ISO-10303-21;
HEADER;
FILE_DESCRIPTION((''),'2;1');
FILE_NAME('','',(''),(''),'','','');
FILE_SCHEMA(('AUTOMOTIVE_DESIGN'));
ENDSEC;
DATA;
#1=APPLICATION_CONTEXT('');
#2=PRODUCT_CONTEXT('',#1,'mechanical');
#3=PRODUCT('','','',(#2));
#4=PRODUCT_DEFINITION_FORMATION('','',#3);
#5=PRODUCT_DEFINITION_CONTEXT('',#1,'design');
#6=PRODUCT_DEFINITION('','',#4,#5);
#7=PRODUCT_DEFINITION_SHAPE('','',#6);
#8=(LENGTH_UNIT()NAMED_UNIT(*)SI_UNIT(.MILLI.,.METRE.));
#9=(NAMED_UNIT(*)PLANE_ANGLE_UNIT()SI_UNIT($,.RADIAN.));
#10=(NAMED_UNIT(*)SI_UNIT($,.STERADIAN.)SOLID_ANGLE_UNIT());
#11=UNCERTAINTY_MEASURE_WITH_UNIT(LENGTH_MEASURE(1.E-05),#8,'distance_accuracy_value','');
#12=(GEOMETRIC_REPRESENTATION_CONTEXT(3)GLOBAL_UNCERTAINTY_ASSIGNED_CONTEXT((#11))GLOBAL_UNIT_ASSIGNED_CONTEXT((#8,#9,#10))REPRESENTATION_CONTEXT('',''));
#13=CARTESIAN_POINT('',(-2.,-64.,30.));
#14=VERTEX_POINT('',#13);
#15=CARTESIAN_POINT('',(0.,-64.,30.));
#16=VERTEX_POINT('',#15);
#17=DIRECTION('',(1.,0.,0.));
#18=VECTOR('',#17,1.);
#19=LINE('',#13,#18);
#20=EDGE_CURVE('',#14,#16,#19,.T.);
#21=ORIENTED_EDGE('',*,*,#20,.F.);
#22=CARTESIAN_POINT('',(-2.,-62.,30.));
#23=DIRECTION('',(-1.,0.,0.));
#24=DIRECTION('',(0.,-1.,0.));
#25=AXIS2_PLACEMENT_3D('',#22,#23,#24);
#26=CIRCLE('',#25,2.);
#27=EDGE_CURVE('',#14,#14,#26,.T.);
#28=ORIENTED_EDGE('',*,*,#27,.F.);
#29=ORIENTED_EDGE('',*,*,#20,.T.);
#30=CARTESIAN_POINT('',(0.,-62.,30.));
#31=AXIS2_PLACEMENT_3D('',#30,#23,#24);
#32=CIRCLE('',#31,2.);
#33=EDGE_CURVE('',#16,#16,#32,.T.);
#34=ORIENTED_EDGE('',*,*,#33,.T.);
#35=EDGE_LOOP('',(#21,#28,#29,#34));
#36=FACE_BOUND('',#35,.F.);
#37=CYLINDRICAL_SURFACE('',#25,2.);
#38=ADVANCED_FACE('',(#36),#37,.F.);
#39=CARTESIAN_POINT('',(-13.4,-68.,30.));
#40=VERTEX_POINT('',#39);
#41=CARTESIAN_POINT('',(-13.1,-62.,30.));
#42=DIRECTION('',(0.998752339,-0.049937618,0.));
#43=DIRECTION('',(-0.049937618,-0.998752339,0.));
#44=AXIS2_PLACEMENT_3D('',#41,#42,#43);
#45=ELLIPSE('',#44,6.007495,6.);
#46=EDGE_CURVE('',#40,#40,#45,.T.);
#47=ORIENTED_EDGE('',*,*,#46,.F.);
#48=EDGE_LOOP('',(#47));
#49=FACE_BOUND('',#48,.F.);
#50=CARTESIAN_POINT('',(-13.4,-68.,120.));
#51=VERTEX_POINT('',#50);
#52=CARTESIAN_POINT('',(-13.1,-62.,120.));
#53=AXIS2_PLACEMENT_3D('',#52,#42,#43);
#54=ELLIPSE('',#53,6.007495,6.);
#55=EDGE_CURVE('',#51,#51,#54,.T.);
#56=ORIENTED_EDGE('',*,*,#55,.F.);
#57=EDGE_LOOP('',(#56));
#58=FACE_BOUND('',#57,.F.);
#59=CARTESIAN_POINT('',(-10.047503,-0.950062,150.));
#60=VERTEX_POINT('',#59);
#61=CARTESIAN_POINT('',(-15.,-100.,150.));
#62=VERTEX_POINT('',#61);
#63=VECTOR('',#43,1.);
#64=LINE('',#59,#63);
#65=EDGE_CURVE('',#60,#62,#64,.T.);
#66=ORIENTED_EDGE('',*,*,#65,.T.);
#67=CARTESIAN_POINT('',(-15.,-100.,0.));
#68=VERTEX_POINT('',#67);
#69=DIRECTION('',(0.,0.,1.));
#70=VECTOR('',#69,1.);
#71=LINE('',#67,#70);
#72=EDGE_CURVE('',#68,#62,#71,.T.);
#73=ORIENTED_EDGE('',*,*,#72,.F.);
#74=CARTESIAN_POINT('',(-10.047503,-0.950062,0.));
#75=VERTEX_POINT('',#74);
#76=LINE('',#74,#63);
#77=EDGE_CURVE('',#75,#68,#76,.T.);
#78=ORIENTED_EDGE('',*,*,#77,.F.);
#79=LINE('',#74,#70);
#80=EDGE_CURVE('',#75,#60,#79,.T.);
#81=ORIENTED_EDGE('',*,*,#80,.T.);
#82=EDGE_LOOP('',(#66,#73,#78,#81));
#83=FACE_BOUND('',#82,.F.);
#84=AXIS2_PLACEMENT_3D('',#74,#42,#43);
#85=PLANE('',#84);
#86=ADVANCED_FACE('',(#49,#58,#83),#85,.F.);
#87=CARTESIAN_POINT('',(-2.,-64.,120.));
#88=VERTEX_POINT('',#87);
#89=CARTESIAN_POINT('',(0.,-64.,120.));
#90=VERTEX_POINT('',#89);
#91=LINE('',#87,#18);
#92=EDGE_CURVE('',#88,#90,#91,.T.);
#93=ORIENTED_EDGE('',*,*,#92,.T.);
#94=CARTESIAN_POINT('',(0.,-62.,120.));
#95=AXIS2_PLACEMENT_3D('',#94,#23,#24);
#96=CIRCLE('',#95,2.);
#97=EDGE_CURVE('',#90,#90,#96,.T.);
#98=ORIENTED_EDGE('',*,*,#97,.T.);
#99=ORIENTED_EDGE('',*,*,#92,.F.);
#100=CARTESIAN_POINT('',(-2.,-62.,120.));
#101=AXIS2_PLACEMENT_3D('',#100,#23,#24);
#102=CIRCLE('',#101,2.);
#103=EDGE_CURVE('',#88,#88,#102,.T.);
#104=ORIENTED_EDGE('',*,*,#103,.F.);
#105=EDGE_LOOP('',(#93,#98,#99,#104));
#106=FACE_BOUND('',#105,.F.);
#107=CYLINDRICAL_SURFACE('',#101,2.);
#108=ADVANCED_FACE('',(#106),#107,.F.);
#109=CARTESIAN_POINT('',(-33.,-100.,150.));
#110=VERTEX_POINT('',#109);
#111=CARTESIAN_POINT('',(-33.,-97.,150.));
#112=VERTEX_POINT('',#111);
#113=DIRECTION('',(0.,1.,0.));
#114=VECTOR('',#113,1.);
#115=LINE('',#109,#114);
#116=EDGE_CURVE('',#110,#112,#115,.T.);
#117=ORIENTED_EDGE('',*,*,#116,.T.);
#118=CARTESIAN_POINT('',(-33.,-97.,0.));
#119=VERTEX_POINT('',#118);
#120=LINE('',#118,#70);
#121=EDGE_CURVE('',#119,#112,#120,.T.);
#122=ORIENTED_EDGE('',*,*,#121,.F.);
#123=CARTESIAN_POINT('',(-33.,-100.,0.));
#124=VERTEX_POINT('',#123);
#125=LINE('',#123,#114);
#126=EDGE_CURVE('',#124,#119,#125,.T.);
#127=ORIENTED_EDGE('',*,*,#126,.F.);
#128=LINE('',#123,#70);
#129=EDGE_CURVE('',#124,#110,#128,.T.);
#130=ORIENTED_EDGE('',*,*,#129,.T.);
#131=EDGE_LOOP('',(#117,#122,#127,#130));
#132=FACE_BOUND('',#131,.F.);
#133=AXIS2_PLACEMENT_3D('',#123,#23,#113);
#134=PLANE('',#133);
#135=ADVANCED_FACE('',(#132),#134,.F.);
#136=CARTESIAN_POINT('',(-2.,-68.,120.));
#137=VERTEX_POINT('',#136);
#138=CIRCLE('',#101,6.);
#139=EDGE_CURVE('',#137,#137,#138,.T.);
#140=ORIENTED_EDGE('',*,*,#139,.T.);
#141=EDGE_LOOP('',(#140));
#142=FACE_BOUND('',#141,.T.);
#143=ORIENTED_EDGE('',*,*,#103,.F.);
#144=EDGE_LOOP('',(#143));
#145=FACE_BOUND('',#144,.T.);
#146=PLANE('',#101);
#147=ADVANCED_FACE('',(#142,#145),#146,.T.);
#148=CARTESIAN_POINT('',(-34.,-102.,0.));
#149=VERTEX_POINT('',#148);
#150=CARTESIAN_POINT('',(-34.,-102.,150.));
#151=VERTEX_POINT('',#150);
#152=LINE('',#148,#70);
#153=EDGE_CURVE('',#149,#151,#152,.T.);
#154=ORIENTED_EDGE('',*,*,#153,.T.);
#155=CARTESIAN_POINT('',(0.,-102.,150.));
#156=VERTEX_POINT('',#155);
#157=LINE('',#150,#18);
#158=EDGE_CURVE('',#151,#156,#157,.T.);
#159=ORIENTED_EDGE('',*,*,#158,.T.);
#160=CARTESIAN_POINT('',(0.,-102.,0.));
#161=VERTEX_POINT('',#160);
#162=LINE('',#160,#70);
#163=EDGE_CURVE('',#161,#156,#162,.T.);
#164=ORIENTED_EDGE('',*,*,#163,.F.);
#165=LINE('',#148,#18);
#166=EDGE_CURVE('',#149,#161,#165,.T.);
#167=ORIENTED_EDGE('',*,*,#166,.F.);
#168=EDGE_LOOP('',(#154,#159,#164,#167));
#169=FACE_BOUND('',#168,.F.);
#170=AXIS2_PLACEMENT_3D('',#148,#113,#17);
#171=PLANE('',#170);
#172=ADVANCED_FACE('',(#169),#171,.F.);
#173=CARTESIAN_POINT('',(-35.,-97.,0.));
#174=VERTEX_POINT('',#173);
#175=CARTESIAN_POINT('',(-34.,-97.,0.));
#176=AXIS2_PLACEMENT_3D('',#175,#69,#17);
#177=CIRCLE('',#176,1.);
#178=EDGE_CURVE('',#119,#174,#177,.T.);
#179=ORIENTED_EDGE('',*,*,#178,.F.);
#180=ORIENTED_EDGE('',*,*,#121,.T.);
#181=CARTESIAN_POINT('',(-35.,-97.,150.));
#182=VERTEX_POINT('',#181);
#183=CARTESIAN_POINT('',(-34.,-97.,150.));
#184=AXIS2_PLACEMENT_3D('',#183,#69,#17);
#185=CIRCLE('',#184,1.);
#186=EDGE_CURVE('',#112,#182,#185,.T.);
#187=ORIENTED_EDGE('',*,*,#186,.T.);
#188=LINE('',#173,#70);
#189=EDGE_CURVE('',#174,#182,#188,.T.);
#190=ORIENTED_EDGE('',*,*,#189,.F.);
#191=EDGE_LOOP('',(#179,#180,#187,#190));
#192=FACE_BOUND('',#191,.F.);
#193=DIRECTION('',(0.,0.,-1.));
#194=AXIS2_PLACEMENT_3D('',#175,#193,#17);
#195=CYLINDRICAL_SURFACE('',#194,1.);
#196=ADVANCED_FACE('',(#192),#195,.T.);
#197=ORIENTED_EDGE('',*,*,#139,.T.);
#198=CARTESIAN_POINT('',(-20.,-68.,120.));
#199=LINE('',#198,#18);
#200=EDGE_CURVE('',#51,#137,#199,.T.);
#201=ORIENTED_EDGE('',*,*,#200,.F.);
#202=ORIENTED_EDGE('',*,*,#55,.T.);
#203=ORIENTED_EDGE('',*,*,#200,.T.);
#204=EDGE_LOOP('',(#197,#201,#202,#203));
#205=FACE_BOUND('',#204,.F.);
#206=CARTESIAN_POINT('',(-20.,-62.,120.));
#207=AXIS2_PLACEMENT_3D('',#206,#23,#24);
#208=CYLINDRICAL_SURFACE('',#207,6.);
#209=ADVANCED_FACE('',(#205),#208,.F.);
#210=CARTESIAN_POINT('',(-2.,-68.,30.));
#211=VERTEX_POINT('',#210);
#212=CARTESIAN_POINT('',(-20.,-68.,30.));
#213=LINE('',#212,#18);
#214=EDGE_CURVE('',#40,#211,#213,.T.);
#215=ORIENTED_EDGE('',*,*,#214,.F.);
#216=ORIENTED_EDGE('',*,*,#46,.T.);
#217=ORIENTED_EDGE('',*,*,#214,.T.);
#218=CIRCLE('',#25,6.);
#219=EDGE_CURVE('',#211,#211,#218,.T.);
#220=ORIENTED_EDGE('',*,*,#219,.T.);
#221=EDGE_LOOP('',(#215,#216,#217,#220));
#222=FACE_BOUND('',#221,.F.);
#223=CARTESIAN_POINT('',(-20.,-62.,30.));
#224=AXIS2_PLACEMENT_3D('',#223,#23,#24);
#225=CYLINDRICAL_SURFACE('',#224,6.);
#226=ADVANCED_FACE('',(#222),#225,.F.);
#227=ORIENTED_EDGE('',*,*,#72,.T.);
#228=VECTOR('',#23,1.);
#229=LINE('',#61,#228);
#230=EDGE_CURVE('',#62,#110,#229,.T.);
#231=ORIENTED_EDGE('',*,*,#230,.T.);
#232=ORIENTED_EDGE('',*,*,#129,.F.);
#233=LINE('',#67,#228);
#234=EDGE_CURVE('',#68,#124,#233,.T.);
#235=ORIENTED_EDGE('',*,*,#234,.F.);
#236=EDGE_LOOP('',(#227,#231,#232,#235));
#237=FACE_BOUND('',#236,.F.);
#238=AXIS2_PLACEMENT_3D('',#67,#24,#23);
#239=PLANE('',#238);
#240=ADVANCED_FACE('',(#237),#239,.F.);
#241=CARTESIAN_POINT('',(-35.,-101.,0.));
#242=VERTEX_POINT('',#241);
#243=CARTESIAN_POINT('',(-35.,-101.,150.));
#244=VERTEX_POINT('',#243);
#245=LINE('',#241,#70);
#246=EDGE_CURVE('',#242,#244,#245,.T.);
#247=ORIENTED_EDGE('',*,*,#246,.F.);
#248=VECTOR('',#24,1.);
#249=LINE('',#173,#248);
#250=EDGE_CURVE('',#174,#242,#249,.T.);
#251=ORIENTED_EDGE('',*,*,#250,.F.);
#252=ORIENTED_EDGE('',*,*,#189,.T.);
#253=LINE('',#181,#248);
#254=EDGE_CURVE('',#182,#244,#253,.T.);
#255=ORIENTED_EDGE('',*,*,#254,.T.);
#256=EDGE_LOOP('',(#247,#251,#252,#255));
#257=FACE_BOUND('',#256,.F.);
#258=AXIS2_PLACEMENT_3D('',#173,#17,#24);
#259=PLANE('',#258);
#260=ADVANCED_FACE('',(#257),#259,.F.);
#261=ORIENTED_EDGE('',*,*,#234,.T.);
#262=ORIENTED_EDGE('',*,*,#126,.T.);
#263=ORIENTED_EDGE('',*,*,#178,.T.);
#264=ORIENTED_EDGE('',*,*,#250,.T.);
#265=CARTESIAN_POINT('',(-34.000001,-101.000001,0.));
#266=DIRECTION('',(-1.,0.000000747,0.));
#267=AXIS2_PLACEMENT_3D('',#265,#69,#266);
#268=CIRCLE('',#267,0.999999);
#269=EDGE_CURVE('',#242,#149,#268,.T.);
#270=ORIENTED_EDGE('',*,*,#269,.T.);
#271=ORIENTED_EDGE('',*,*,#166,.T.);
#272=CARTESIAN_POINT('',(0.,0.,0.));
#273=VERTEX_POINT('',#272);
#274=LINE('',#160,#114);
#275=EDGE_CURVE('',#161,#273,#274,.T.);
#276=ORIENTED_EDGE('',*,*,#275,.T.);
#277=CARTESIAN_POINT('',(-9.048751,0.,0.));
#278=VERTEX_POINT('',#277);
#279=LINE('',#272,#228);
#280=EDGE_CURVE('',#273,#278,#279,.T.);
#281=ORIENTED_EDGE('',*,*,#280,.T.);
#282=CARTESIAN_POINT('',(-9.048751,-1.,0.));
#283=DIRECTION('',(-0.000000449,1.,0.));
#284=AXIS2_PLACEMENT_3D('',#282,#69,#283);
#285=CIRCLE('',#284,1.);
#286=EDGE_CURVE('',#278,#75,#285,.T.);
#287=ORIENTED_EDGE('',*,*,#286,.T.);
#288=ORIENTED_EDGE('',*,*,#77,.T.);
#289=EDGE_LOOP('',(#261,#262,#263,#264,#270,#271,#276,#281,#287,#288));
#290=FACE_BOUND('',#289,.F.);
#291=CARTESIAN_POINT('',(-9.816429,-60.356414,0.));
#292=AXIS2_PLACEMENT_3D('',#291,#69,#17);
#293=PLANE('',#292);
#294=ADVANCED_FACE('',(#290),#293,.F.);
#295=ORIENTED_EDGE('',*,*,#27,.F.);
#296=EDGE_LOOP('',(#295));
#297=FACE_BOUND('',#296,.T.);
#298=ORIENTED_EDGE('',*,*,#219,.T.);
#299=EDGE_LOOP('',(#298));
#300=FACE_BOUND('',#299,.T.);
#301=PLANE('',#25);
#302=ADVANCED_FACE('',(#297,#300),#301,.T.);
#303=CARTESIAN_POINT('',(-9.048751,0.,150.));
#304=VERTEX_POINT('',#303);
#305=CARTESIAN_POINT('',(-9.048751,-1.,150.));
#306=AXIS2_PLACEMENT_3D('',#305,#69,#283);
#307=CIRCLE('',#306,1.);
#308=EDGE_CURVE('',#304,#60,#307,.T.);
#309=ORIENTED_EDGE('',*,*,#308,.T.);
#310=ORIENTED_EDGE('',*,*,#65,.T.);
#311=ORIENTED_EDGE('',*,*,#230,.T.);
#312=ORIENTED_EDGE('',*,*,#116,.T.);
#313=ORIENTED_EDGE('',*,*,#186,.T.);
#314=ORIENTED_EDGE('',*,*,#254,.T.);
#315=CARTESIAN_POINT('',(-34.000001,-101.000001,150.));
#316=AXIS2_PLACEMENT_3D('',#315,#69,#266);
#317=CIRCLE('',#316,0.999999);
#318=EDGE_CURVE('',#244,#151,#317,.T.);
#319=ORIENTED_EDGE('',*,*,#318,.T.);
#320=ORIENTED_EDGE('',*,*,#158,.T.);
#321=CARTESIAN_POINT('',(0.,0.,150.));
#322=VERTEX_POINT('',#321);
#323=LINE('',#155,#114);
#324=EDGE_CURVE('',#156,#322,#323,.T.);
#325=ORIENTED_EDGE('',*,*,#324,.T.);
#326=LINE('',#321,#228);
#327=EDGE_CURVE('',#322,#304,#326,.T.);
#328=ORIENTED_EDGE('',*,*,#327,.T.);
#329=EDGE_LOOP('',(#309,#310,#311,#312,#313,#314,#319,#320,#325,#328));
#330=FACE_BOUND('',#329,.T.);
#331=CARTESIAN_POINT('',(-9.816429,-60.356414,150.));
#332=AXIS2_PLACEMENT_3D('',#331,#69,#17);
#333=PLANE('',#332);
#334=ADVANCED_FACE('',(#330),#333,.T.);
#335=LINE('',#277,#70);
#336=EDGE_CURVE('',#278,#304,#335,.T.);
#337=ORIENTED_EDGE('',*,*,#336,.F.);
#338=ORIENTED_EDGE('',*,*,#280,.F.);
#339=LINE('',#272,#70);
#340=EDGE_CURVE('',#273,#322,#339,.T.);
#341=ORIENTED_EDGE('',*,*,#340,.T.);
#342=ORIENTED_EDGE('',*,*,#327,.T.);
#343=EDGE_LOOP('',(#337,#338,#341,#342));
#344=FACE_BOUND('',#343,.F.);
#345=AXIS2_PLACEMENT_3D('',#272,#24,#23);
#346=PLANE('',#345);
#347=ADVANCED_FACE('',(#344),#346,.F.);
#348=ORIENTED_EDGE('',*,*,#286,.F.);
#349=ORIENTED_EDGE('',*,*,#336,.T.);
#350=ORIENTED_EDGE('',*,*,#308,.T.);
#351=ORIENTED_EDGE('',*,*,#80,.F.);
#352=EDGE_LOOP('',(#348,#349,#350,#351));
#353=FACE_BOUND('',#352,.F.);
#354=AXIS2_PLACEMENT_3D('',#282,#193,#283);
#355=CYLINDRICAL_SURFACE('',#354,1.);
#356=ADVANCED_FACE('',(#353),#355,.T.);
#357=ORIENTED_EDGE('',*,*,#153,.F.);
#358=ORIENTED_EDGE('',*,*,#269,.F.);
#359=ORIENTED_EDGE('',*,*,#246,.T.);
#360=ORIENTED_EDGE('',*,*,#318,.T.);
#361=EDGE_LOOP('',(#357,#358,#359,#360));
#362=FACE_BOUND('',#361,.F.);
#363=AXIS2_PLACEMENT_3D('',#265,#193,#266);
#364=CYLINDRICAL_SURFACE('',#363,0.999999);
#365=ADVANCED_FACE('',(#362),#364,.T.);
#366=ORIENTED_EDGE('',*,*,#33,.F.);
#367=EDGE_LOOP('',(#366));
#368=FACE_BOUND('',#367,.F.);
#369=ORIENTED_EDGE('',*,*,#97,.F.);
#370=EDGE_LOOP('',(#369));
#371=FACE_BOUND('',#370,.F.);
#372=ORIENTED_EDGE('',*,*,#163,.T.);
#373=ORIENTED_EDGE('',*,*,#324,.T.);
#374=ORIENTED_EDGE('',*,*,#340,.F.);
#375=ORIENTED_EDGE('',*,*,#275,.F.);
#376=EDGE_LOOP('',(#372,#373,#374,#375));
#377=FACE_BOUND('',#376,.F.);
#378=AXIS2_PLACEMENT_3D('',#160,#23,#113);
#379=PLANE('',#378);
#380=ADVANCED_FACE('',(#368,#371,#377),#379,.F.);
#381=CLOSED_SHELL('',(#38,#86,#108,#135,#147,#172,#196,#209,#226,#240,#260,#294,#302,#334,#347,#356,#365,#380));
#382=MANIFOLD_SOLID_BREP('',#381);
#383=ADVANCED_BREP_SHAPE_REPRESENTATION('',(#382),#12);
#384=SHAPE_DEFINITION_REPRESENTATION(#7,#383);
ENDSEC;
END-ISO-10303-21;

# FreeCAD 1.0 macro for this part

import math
import FreeCAD as App
import Part
import Sketcher

V = App.Vector
Q = App.Units.Quantity

doc = App.newDocument("Part")
body = doc.addObject("PartDesign::Body", "Body")

sketch1 = body.newObject("Sketcher::SketchObject", "Sketch")
sketch1.AttachmentSupport = (doc.getObject("XY_Plane"), [""])
sketch1.MapMode = "FlatFace"
sketch1.addGeometry([
    Part.LineSegment(V(0, 0, 0), V(-9, 0, 0)),
    Part.ArcOfCircle(Part.Circle(V(-9, -1, 0), V(0, 0, 1), 1), math.radians(90), math.radians(177)),
    Part.LineSegment(V(-10, -1, 0), V(-15, -100, 0)),
    Part.LineSegment(V(-15, -100, 0), V(-33, -100, 0)),
    Part.LineSegment(V(-33, -100, 0), V(-33, -97, 0)),
    Part.ArcOfCircle(Part.Circle(V(-34, -97, 0), V(0, 0, 1), 1), math.radians(0), math.radians(180)),
    Part.LineSegment(V(-35, -97, 0), V(-35, -101, 0)),
    Part.ArcOfCircle(Part.Circle(V(-34, -101, 0), V(0, 0, 1), 1), math.radians(180), math.radians(270)),
    Part.LineSegment(V(-34, -102, 0), V(0, -102, 0)),
    Part.LineSegment(V(0, -102, 0), V(0, 0, 0)),
], False)
sketch1.addConstraint([
    Sketcher.Constraint("Tangent", 0, 2, 1, 1),
    Sketcher.Constraint("Tangent", 1, 2, 2, 1),
    Sketcher.Constraint("Coincident", 2, 2, 3, 1),
    Sketcher.Constraint("Coincident", 3, 2, 4, 1),
    Sketcher.Constraint("Tangent", 4, 2, 5, 1),
    Sketcher.Constraint("Tangent", 5, 2, 6, 1),
    Sketcher.Constraint("Tangent", 6, 2, 7, 1),
    Sketcher.Constraint("Tangent", 7, 2, 8, 1),
    Sketcher.Constraint("Coincident", 8, 2, 9, 1),
    Sketcher.Constraint("Coincident", 9, 2, 0, 1),
    Sketcher.Constraint("Horizontal", 0),
    Sketcher.Constraint("Horizontal", 3),
    Sketcher.Constraint("Vertical", 4),
    Sketcher.Constraint("Vertical", 6),
    Sketcher.Constraint("Horizontal", 8),
    Sketcher.Constraint("Vertical", 9),
    Sketcher.Constraint("Coincident", 9, 2, -1, 1),
    Sketcher.Constraint("Equal", 1, 5),
    Sketcher.Constraint("Equal", 5, 7),
    Sketcher.Constraint("Radius", 1, Q("1 mm")),
    Sketcher.Constraint("DistanceX", 3, 2, 3, 1, Q("18 mm")),
    Sketcher.Constraint("DistanceX", 8, 1, 8, 2, Q("34 mm")),
    Sketcher.Constraint("DistanceY", 4, 1, 4, 2, Q("3 mm")),
    Sketcher.Constraint("DistanceY", 6, 2, 6, 1, Q("4 mm")),
    Sketcher.Constraint("DistanceY", 9, 1, 9, 2, Q("102 mm")),
    Sketcher.Constraint("DistanceX", 0, 2, 0, 1, Q("9.048751 mm")),
])
pad1 = body.newObject("PartDesign::Pad", "Pad")
pad1.Profile = sketch1
pad1.Length = 150

sketch2 = body.newObject("Sketcher::SketchObject", "Sketch001")
sketch2.AttachmentSupport = (doc.getObject("YZ_Plane"), [""])
sketch2.MapMode = "FlatFace"
sketch2.AttachmentOffset = App.Placement(V(0, 0, -20), App.Rotation())
sketch2.addGeometry([
    Part.Circle(V(-62, 30, 0), V(0, 0, 1), 6),
    Part.Circle(V(-62, 120, 0), V(0, 0, 1), 6),
], False)
sketch2.addConstraint([
    Sketcher.Constraint("Equal", 0, 1),
    Sketcher.Constraint("Vertical", 0, 3, 1, 3),
    Sketcher.Constraint("Diameter", 0, Q("12 mm")),
    Sketcher.Constraint("DistanceX", 0, 3, -1, 1, Q("62 mm")),
    Sketcher.Constraint("DistanceY", -1, 1, 0, 3, Q("30 mm")),
    Sketcher.Constraint("DistanceY", -1, 1, 1, 3, Q("120 mm")),
])
pocket1 = body.newObject("PartDesign::Pocket", "Pocket")
pocket1.Profile = sketch2
pocket1.Length = 18
pocket1.Reversed = True

sketch3 = body.newObject("Sketcher::SketchObject", "Sketch002")
sketch3.AttachmentSupport = (doc.getObject("YZ_Plane"), [""])
sketch3.MapMode = "FlatFace"
sketch3.AttachmentOffset = App.Placement(V(0, 0, -2), App.Rotation())
sketch3.addGeometry([
    Part.Circle(V(-62, 120, 0), V(0, 0, 1), 2),
    Part.Circle(V(-62, 30, 0), V(0, 0, 1), 2),
], False)
sketch3.addConstraint([
    Sketcher.Constraint("Equal", 0, 1),
    Sketcher.Constraint("Vertical", 0, 3, 1, 3),
    Sketcher.Constraint("Diameter", 0, Q("4 mm")),
    Sketcher.Constraint("DistanceX", 0, 3, -1, 1, Q("62 mm")),
    Sketcher.Constraint("DistanceY", -1, 1, 0, 3, Q("120 mm")),
    Sketcher.Constraint("DistanceY", -1, 1, 1, 3, Q("30 mm")),
])
pocket2 = body.newObject("PartDesign::Pocket", "Pocket001")
pocket2.Profile = sketch3
pocket2.Type = "ThroughAll"
pocket2.Reversed = True

doc.recompute()
